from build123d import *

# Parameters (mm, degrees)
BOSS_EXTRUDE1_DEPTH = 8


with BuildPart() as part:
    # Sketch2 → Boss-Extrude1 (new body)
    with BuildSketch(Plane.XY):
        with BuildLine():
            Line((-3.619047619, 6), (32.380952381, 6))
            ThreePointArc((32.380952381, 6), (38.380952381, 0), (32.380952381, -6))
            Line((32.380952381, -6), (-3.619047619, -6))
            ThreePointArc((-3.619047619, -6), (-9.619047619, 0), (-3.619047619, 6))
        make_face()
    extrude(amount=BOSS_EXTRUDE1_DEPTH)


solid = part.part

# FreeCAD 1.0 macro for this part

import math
import FreeCAD as App
import Part
import Sketcher
from FreeCAD import Vector

doc = App.newDocument("Part")
body = doc.addObject("PartDesign::Body", "Body")

# Sketch on XY plane
sketch1 = body.newObject("Sketcher::SketchObject", "Sketch")
sketch1.AttachmentSupport = (doc.getObject("XY_Plane"), [""])
sketch1.MapMode = "FlatFace"
sketch1.addGeometry(Part.LineSegment(Vector(32, 6, 0), Vector(-4, 6, 0)), False)
sketch1.addGeometry(Part.ArcOfCircle(Part.Circle(Vector(-4, 0, 0), Vector(0, 0, 1), 6), math.radians(90), math.radians(270)), False)
sketch1.addGeometry(Part.LineSegment(Vector(-4, -6, 0), Vector(32, -6, 0)), False)
sketch1.addGeometry(Part.ArcOfCircle(Part.Circle(Vector(32, 0, 0), Vector(0, 0, 1), 6), math.radians(-90), math.radians(90)), False)
sketch1.addConstraint(Sketcher.Constraint("Tangent", 0, 2, 1, 1))
sketch1.addConstraint(Sketcher.Constraint("Tangent", 1, 2, 2, 1))
sketch1.addConstraint(Sketcher.Constraint("Tangent", 2, 2, 3, 1))
sketch1.addConstraint(Sketcher.Constraint("Tangent", 3, 2, 0, 1))
sketch1.addConstraint(Sketcher.Constraint("Horizontal", 0))
sketch1.addConstraint(Sketcher.Constraint("Horizontal", 2))
sketch1.addConstraint(Sketcher.Constraint("PointOnObject", 1, 3, -1))
sketch1.addConstraint(Sketcher.Constraint("Radius", 1, 6.0))
sketch1.addConstraint(Sketcher.Constraint("DistanceX", 0, 2, 0, 1, 36.0))
sketch1.addConstraint(Sketcher.Constraint("DistanceX", 1, 3, -1, 1, 3.619048))
pad1 = body.newObject("PartDesign::Pad", "Pad")
pad1.Profile = sketch1
pad1.Length = 8

doc.recompute()
